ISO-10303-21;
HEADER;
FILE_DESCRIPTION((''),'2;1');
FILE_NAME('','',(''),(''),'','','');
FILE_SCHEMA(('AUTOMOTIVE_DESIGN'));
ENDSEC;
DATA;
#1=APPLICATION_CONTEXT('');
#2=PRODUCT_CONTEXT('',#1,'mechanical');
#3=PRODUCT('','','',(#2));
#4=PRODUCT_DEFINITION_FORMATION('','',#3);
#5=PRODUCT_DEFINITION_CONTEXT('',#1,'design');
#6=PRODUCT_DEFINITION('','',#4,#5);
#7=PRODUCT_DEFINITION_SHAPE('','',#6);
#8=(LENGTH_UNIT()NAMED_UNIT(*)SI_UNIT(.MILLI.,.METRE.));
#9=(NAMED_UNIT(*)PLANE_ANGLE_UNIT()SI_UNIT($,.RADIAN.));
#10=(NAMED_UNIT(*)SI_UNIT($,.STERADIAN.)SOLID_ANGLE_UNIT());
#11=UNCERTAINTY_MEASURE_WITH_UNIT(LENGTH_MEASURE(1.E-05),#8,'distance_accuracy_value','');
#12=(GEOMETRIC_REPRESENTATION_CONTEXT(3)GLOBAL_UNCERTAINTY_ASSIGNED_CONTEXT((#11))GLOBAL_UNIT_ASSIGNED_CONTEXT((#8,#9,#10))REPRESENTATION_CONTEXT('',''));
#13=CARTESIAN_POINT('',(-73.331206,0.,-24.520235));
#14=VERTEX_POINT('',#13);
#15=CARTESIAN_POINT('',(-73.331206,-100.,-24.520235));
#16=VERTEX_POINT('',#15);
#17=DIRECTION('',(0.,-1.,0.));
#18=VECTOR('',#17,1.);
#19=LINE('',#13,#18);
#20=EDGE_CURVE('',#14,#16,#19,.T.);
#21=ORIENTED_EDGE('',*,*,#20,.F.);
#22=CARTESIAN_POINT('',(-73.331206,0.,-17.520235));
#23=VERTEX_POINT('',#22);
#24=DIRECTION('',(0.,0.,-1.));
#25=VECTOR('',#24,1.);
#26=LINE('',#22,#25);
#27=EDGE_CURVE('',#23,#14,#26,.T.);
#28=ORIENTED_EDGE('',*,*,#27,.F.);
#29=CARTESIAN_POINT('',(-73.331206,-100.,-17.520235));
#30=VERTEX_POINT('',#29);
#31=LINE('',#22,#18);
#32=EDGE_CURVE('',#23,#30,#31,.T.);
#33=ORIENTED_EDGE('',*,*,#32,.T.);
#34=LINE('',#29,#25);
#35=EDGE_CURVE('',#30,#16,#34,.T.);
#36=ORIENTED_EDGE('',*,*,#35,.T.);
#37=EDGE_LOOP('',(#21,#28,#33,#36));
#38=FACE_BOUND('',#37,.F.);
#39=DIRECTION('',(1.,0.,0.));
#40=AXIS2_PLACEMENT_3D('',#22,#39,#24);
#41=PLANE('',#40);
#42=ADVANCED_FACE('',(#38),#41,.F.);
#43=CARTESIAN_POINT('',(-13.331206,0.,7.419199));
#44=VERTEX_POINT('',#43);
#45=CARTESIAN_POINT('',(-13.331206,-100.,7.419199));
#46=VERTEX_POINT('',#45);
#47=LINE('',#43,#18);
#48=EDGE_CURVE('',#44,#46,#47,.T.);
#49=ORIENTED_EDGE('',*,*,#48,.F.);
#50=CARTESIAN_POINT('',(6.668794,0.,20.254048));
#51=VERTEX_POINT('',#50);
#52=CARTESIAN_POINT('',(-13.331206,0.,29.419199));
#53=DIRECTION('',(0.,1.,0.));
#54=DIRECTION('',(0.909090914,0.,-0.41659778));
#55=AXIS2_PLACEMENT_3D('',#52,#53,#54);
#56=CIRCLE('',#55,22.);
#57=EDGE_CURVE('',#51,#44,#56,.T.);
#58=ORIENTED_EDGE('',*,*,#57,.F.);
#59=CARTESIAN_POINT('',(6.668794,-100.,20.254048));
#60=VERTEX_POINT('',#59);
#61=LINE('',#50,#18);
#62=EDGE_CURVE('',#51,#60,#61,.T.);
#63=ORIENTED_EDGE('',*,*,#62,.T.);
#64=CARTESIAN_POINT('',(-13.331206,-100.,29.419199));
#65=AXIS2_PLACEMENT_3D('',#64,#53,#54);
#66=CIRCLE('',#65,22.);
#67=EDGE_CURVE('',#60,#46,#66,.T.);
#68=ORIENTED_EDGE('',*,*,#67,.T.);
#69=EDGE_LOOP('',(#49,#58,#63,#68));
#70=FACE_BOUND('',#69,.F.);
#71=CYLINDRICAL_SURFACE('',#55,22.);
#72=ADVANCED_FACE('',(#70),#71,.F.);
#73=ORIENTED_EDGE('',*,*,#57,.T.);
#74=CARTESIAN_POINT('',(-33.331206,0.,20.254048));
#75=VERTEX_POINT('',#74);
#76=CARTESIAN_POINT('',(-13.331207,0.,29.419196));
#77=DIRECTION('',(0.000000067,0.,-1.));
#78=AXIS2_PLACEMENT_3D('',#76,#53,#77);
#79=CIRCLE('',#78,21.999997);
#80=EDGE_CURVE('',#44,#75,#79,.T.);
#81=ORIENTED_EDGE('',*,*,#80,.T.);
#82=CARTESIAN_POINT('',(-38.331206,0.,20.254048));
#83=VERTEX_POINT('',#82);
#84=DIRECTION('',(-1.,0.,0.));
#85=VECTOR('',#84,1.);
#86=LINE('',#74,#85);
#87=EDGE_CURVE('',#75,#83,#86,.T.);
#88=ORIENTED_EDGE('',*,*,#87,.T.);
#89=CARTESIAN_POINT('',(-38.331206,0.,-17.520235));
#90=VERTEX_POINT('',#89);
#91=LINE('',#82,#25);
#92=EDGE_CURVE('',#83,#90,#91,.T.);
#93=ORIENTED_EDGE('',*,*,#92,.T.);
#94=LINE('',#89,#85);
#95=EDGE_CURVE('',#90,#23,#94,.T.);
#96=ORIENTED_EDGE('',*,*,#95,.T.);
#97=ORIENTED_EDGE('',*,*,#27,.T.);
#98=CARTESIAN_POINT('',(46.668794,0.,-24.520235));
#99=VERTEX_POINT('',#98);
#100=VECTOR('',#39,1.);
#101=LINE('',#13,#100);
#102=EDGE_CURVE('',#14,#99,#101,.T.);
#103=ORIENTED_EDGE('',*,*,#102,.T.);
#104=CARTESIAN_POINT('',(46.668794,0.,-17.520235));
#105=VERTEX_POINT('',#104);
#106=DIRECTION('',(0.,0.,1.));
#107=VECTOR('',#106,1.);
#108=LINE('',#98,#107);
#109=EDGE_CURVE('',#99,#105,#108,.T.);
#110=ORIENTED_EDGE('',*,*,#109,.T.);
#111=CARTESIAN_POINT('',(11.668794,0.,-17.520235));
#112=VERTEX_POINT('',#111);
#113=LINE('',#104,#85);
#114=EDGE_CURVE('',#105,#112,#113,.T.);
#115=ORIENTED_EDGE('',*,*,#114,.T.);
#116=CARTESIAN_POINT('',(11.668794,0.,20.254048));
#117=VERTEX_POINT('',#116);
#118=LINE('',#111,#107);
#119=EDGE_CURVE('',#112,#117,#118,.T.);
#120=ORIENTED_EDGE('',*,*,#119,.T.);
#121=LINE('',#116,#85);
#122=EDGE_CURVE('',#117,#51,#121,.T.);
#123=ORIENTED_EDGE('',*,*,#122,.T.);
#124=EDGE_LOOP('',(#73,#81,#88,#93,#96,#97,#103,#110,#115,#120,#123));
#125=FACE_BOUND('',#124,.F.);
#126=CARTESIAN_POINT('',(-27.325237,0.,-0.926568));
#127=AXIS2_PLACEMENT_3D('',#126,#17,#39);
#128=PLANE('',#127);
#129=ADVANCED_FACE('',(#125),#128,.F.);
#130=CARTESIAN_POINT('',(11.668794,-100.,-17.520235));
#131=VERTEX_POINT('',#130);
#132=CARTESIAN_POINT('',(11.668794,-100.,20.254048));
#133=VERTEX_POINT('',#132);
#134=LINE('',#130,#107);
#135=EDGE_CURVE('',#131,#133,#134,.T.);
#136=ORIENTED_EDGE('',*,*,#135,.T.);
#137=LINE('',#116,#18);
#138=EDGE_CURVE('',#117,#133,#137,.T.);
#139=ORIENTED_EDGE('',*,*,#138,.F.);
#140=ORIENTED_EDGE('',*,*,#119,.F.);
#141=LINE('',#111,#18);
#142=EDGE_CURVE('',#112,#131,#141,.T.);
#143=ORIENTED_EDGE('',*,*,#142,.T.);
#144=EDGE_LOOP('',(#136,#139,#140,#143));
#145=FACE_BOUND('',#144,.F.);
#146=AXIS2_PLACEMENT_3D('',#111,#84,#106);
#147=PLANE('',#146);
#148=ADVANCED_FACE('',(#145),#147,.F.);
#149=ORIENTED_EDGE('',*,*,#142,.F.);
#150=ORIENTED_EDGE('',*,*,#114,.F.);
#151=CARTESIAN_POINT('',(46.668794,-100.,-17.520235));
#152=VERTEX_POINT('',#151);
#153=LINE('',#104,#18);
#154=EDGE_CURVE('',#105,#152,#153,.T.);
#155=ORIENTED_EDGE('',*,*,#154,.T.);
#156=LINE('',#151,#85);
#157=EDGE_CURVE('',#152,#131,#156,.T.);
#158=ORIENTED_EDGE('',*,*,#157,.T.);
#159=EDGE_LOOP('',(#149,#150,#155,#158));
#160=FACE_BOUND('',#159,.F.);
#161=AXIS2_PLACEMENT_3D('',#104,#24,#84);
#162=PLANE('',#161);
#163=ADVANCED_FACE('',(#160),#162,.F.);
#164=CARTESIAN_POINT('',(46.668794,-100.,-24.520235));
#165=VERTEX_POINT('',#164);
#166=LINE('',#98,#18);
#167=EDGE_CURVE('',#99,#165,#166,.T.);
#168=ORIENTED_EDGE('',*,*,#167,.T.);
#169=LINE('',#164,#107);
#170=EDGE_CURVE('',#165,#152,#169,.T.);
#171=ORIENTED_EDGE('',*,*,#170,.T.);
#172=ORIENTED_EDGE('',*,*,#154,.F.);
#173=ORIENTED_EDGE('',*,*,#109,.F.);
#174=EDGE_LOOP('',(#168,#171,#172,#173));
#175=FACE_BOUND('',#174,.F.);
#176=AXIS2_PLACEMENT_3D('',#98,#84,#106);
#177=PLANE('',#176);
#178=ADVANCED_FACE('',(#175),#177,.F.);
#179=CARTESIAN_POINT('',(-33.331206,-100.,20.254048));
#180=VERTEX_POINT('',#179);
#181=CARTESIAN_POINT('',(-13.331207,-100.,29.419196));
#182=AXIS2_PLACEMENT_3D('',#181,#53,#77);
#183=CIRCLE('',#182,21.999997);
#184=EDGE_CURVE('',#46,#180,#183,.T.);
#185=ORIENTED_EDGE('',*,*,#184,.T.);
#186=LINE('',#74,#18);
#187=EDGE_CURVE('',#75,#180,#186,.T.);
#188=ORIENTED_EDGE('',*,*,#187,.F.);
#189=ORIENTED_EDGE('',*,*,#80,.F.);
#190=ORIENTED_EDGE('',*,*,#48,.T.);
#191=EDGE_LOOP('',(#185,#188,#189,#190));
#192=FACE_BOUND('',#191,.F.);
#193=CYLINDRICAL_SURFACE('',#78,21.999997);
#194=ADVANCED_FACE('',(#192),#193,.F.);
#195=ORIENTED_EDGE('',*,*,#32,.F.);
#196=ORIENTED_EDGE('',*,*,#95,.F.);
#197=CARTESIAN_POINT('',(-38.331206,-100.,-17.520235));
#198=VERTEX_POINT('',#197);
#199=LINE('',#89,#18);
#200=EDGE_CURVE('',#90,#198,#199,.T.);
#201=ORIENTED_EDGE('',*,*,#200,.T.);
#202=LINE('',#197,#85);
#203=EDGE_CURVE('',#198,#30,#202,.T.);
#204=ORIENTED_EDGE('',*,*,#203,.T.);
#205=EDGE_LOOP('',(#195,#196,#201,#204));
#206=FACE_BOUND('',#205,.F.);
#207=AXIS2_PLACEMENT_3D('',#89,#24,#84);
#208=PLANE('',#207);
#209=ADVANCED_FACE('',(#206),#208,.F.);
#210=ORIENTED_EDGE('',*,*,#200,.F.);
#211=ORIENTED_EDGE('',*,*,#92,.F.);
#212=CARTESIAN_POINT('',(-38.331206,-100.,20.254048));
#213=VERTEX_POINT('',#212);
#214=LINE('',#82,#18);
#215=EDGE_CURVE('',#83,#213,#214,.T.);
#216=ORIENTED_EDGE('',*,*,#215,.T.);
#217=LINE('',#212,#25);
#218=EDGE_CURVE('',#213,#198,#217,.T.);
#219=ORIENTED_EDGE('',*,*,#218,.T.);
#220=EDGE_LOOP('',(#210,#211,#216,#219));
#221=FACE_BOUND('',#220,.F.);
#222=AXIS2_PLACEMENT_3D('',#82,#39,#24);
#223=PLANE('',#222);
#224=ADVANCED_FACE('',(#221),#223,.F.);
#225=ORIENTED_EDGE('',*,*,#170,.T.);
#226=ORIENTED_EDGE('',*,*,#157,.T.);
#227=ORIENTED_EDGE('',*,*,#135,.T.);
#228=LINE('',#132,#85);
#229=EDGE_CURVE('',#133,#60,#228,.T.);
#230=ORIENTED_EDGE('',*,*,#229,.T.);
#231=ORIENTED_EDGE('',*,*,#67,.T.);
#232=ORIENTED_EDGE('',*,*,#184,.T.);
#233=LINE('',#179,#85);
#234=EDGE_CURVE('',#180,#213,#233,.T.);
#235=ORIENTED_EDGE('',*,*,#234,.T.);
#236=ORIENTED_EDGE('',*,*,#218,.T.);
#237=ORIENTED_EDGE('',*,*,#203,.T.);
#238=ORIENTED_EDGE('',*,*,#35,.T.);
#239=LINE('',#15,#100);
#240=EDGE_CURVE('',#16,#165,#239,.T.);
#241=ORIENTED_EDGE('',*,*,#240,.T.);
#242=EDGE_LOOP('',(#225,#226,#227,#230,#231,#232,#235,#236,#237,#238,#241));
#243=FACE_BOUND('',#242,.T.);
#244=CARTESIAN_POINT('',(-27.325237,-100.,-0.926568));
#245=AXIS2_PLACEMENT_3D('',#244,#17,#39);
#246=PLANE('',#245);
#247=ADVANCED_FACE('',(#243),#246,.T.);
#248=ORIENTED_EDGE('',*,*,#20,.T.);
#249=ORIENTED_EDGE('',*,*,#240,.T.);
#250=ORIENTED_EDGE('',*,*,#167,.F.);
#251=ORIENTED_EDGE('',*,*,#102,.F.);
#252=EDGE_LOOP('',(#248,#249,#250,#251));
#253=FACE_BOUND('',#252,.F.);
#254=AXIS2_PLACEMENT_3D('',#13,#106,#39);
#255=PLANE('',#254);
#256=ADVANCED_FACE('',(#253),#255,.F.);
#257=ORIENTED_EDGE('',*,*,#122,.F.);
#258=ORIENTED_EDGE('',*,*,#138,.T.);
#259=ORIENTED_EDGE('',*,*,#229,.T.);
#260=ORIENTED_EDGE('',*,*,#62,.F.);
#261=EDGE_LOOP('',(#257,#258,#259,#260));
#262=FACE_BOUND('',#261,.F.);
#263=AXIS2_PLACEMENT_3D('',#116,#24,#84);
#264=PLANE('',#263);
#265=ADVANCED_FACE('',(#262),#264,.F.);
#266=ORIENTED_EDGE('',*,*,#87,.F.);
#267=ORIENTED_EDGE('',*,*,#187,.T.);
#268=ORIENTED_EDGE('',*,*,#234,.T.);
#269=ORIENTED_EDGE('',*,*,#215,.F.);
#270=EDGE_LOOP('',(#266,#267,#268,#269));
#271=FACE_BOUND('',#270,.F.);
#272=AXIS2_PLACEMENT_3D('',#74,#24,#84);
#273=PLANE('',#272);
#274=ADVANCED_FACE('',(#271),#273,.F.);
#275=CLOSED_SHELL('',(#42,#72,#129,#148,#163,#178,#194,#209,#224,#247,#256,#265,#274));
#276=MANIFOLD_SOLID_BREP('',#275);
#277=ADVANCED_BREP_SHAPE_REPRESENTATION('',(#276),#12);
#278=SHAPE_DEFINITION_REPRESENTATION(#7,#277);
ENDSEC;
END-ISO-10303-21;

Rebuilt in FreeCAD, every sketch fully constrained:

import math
import FreeCAD as App
import Part
import Sketcher
Q = App.Units.Quantity

doc = App.newDocument("Part")
body = doc.addObject("PartDesign::Body", "Body")

sketch1 = body.newObject("Sketcher::SketchObject", "Sketch")
sketch1.AttachmentSupport = (doc.getObject("XZ_Plane"), [""])
sketch1.MapMode = "FlatFace"
sketch1.addGeometry([
    Part.LineSegment(App.Vector(-38, 20, 0), App.Vector(-38, -18, 0)),
    Part.LineSegment(App.Vector(-38, -18, 0), App.Vector(-73, -18, 0)),
    Part.LineSegment(App.Vector(-73, -18, 0), App.Vector(-73, -25, 0)),
    Part.LineSegment(App.Vector(-73, -25, 0), App.Vector(47, -25, 0)),
    Part.LineSegment(App.Vector(47, -25, 0), App.Vector(47, -18, 0)),
    Part.LineSegment(App.Vector(47, -18, 0), App.Vector(12, -18, 0)),
    Part.LineSegment(App.Vector(12, -18, 0), App.Vector(12, 20, 0)),
    Part.LineSegment(App.Vector(12, 20, 0), App.Vector(7, 20, 0)),
    Part.ArcOfCircle(Part.Circle(App.Vector(-13, 29, 0), App.Vector(0, 0, 1), 22), math.radians(-90), math.radians(-25)),
    Part.ArcOfCircle(Part.Circle(App.Vector(-13, 29, 0), App.Vector(0, 0, 1), 22), math.radians(-155), math.radians(-90)),
    Part.LineSegment(App.Vector(-33, 20, 0), App.Vector(-38, 20, 0)),
], False)
sketch1.addConstraint([
    Sketcher.Constraint("Coincident", 0, 2, 1, 1),
    Sketcher.Constraint("Coincident", 1, 2, 2, 1),
    Sketcher.Constraint("Coincident", 2, 2, 3, 1),
    Sketcher.Constraint("Coincident", 3, 2, 4, 1),
    Sketcher.Constraint("Coincident", 4, 2, 5, 1),
    Sketcher.Constraint("Coincident", 5, 2, 6, 1),
    Sketcher.Constraint("Coincident", 6, 2, 7, 1),
    Sketcher.Constraint("Coincident", 7, 2, 8, 2),
    Sketcher.Constraint("Tangent", 8, 1, 9, 2),
    Sketcher.Constraint("Coincident", 9, 1, 10, 1),
    Sketcher.Constraint("Coincident", 10, 2, 0, 1),
    Sketcher.Constraint("Vertical", 0),
    Sketcher.Constraint("Horizontal", 1),
    Sketcher.Constraint("Vertical", 2),
    Sketcher.Constraint("Horizontal", 3),
    Sketcher.Constraint("Vertical", 4),
    Sketcher.Constraint("Horizontal", 5),
    Sketcher.Constraint("Vertical", 6),
    Sketcher.Constraint("Horizontal", 7),
    Sketcher.Constraint("Horizontal", 10),
    Sketcher.Constraint("Horizontal", 1, 2, 4, 2),
    Sketcher.Constraint("Horizontal", 7, 2, 9, 1),
    Sketcher.Constraint("Vertical", 9, 3, 8, 1),
    Sketcher.Constraint("Equal", 1, 5),
    Sketcher.Constraint("Equal", 7, 10),
    Sketcher.Constraint("Radius", 8, Q("22 mm")),
    Sketcher.Constraint("DistanceX", 1, 2, 1, 1, Q("35 mm")),
    Sketcher.Constraint("DistanceX", 3, 1, 3, 2, Q("120 mm")),
    Sketcher.Constraint("DistanceX", 7, 2, 7, 1, Q("5 mm")),
    Sketcher.Constraint("DistanceY", 2, 2, 2, 1, Q("7 mm")),
    Sketcher.Constraint("DistanceX", 0, 2, 9, 3, Q("24.999999 mm")),
    Sketcher.Constraint("DistanceY", -1, 1, 8, 3, Q("29.419199 mm")),
    Sketcher.Constraint("DistanceY", 0, 2, 0, 1, Q("37.774283 mm")),
    Sketcher.Constraint("DistanceX", 8, 3, -1, 1, Q("13.331206 mm")),
])
pad1 = body.newObject("PartDesign::Pad", "Pad")
pad1.Profile = sketch1
pad1.Length = 100

doc.recompute()
